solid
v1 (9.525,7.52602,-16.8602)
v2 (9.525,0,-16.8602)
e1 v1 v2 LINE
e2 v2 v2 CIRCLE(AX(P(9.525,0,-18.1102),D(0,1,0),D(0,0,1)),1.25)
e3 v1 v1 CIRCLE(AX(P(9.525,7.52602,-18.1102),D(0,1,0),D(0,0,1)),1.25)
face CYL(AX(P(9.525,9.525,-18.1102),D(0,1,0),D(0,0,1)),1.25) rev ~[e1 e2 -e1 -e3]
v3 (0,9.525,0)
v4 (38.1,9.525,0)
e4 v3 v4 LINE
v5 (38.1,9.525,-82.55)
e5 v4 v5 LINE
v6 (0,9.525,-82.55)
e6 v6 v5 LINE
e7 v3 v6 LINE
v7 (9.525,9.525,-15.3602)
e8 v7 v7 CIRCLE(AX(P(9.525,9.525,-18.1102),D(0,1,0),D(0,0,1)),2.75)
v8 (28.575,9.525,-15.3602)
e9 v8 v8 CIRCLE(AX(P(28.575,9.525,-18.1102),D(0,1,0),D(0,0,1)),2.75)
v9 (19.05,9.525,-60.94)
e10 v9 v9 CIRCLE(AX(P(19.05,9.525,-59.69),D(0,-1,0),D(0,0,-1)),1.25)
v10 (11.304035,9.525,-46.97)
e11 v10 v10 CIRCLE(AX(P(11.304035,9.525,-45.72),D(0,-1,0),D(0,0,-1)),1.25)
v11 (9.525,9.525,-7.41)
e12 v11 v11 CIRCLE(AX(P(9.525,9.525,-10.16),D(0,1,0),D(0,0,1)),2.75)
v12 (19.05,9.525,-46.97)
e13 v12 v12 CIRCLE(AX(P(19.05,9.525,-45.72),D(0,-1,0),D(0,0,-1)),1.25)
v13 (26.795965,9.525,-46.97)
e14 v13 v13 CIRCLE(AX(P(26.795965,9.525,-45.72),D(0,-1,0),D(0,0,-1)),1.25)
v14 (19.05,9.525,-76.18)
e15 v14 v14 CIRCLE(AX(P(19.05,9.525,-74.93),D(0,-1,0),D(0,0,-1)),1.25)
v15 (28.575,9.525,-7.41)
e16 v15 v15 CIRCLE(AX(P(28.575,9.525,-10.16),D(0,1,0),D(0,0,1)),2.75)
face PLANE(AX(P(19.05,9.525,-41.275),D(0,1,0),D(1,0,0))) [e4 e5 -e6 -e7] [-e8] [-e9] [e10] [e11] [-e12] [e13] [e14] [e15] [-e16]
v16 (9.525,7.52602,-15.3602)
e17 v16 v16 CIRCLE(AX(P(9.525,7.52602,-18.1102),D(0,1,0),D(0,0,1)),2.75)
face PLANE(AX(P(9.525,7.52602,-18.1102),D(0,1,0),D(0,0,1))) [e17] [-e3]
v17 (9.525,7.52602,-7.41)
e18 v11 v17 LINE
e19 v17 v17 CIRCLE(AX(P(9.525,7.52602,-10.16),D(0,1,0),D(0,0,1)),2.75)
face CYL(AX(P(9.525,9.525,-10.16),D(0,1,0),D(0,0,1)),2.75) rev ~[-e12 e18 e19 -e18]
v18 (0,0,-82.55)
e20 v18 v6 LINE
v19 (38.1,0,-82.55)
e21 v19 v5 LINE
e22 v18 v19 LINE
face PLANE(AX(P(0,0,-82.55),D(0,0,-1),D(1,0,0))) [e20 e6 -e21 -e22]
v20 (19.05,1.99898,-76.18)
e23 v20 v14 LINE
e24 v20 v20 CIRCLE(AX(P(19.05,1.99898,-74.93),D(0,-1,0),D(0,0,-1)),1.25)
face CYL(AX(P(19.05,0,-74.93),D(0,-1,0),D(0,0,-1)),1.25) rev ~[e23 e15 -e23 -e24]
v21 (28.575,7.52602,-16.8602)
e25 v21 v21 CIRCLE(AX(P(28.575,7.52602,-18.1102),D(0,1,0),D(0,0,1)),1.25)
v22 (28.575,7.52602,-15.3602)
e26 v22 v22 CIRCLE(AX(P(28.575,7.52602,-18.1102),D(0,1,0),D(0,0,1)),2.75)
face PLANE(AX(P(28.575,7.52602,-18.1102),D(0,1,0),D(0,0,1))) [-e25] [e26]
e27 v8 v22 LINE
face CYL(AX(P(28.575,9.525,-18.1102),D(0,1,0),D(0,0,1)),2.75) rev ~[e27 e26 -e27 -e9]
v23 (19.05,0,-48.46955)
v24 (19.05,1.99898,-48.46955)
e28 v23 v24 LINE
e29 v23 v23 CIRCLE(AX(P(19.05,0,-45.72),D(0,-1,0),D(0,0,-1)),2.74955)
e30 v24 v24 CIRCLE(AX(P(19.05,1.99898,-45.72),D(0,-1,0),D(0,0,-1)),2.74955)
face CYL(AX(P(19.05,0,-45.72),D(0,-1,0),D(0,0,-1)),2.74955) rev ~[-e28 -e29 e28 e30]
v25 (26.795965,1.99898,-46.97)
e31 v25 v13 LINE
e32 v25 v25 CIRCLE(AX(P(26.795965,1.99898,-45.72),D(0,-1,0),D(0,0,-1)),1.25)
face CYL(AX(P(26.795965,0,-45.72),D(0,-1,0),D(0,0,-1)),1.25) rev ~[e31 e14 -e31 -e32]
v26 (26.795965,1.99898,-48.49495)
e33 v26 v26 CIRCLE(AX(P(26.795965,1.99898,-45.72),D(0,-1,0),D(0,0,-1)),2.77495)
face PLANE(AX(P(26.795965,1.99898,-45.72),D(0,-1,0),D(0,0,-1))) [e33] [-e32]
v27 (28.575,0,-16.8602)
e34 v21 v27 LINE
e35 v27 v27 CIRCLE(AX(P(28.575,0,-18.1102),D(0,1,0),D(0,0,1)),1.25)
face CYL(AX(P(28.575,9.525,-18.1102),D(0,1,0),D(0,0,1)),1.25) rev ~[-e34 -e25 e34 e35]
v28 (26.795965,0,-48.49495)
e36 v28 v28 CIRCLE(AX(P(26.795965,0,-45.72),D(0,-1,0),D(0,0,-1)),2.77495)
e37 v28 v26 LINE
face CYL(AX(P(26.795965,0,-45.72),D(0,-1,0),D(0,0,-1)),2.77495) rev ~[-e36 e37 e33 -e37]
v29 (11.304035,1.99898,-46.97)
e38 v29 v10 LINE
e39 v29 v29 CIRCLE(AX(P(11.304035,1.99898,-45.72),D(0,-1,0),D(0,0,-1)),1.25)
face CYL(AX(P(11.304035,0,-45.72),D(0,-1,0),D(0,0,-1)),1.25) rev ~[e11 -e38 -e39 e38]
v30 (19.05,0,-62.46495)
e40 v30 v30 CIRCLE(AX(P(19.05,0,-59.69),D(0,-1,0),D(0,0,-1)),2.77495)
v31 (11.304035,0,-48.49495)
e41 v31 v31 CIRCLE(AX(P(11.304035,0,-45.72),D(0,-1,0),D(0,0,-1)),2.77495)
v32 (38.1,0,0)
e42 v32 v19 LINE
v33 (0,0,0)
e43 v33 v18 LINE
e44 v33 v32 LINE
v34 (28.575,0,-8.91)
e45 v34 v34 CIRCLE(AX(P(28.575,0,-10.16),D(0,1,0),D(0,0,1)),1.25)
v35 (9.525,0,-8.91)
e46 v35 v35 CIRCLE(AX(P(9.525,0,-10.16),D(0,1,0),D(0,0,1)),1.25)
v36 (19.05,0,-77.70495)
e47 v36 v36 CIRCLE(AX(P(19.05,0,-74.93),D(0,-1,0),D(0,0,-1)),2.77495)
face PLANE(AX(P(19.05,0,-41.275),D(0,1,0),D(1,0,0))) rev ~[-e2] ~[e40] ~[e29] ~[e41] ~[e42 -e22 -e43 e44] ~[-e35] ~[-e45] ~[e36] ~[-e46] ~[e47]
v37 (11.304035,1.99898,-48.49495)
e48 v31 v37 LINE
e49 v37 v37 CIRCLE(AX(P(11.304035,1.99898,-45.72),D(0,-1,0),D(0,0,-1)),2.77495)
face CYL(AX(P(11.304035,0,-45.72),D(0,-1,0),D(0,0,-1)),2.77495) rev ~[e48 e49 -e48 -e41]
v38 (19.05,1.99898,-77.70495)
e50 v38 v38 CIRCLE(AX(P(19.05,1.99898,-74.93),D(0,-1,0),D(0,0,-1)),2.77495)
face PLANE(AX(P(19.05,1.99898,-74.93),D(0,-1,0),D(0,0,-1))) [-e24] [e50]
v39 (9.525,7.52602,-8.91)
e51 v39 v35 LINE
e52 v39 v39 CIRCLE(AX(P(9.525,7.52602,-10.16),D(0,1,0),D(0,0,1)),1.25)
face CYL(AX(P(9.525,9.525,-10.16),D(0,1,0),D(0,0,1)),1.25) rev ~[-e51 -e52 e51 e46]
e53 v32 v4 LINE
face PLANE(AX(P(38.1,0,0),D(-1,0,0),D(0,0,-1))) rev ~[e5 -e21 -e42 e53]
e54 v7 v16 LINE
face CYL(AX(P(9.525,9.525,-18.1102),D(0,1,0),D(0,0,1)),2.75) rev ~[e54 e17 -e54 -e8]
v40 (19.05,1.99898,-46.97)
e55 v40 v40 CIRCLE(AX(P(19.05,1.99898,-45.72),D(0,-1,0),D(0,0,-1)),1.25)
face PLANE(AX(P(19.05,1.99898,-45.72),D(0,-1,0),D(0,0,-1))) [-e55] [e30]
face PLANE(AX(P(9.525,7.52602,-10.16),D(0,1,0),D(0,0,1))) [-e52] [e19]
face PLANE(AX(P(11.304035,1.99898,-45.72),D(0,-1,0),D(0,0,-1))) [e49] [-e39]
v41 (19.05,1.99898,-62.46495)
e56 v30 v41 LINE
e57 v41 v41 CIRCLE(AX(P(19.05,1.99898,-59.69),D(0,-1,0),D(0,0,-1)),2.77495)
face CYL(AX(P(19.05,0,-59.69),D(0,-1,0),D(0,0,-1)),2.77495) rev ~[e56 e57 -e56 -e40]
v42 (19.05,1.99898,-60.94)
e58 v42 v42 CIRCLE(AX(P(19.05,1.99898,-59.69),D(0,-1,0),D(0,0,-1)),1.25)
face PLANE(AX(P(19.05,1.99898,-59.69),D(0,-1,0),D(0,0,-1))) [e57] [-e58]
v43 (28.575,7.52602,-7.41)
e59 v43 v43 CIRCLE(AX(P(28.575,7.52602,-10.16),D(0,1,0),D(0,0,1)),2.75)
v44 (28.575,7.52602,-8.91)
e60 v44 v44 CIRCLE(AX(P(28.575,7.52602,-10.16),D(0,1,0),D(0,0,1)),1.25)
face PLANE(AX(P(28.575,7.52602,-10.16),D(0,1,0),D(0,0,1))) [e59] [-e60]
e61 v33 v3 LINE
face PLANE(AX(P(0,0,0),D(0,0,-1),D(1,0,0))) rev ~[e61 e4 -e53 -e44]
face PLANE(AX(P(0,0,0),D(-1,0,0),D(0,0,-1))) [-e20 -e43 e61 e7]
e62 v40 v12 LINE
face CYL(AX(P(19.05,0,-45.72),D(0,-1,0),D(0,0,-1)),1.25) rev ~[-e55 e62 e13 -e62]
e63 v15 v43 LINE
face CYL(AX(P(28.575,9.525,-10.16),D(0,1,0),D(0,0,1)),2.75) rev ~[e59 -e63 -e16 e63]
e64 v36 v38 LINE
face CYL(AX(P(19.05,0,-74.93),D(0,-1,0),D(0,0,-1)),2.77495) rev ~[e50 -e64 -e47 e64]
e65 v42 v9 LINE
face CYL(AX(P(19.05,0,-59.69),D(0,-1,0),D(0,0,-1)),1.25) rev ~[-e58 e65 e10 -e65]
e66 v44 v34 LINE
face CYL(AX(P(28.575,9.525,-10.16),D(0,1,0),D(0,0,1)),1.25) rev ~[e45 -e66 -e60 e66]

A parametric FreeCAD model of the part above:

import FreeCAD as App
import Part
import Sketcher
from FreeCAD import Vector
Q = App.Units.Quantity


def add_polygon(sketch, points):
    """Adds a closed chain of lines whose ends are joined by coincident constraints."""
    first, n = sketch.GeometryCount, len(points)
    for a, b in zip(points, points[1:] + points[:1]):
        sketch.addGeometry(Part.LineSegment(App.Vector(*a, 0), App.Vector(*b, 0)), False)
    for i in range(n):
        sketch.addConstraint(Sketcher.Constraint("Coincident", first + i, 2, first + (i + 1) % n, 1))

doc = App.newDocument("Part")
body = doc.addObject("PartDesign::Body", "Body")

# Sketch on XZ plane
sketch1 = body.newObject("Sketcher::SketchObject", "Sketch")
sketch1.AttachmentSupport = (doc.getObject("XZ_Plane"), [""])
sketch1.MapMode = "FlatFace"
add_polygon(sketch1, [(0, -83), (0, 0), (38, 0), (38, -83)])  # lines 0-3
sketch1.addConstraint(Sketcher.Constraint("Vertical", 0))
sketch1.addConstraint(Sketcher.Constraint("Horizontal", 1))
sketch1.addConstraint(Sketcher.Constraint("Vertical", 2))
sketch1.addConstraint(Sketcher.Constraint("Horizontal", 3))
sketch1.addConstraint(Sketcher.Constraint("Coincident", 0, 2, -1, 1))
sketch1.addConstraint(Sketcher.Constraint("DistanceX", 1, 1, 1, 2, Q("38.1 mm")))
sketch1.addConstraint(Sketcher.Constraint("DistanceY", 0, 1, 0, 2, Q("82.55 mm")))
pad1 = body.newObject("PartDesign::Pad", "Pad")
pad1.Profile = sketch1
pad1.Length = 9.525
pad1.Reversed = True

# Sketch on XZ plane
sketch2 = body.newObject("Sketcher::SketchObject", "Sketch001")
sketch2.AttachmentSupport = (doc.getObject("XZ_Plane"), [""])
sketch2.MapMode = "FlatFace"
sketch2.addGeometry(Part.Circle(Vector(19.1, -74.9, 0), Vector(0, 0, 1), 2.8), False)
sketch2.addGeometry(Part.Circle(Vector(19.1, -59.7, 0), Vector(0, 0, 1), 2.8), False)
sketch2.addConstraint(Sketcher.Constraint("Equal", 0, 1))
sketch2.addConstraint(Sketcher.Constraint("Vertical", 0, 3, 1, 3))
sketch2.addConstraint(Sketcher.Constraint("Diameter", 0, Q("5.5499 mm")))
sketch2.addConstraint(Sketcher.Constraint("DistanceX", -1, 1, 0, 3, Q("19.05 mm")))
sketch2.addConstraint(Sketcher.Constraint("DistanceY", 0, 3, -1, 1, Q("74.93 mm")))
sketch2.addConstraint(Sketcher.Constraint("DistanceY", 1, 3, -1, 1, Q("59.69 mm")))
pocket1 = body.newObject("PartDesign::Pocket", "Pocket")
pocket1.Profile = sketch2
pocket1.Length = 1.99898

# Sketch on XZ plane
sketch3 = body.newObject("Sketcher::SketchObject", "Sketch002")
sketch3.AttachmentSupport = (doc.getObject("XZ_Plane"), [""])
sketch3.MapMode = "FlatFace"
sketch3.addGeometry(Part.Circle(Vector(19.1, -74.9, 0), Vector(0, 0, 1), 1.2), False)
sketch3.addGeometry(Part.Circle(Vector(19.1, -59.7, 0), Vector(0, 0, 1), 1.2), False)
sketch3.addConstraint(Sketcher.Constraint("Equal", 0, 1))
sketch3.addConstraint(Sketcher.Constraint("Vertical", 0, 3, 1, 3))
sketch3.addConstraint(Sketcher.Constraint("Diameter", 0, Q("2.5 mm")))
sketch3.addConstraint(Sketcher.Constraint("DistanceX", -1, 1, 0, 3, Q("19.05 mm")))
sketch3.addConstraint(Sketcher.Constraint("DistanceY", 0, 3, -1, 1, Q("74.93 mm")))
sketch3.addConstraint(Sketcher.Constraint("DistanceY", 1, 3, -1, 1, Q("59.69 mm")))
pocket2 = body.newObject("PartDesign::Pocket", "Pocket001")
pocket2.Profile = sketch3
pocket2.Type = "ThroughAll"

# Sketch on XZ plane
sketch4 = body.newObject("Sketcher::SketchObject", "Sketch003")
sketch4.AttachmentSupport = (doc.getObject("XZ_Plane"), [""])
sketch4.MapMode = "FlatFace"
sketch4.addGeometry(Part.Circle(Vector(19.1, -45.7, 0), Vector(0, 0, 1), 2.7), False)
sketch4.addGeometry(Part.Circle(Vector(11.3, -45.7, 0), Vector(0, 0, 1), 2.8), False)
sketch4.addGeometry(Part.Circle(Vector(26.8, -45.7, 0), Vector(0, 0, 1), 2.8), False)
sketch4.addConstraint(Sketcher.Constraint("Equal", 1, 2))
sketch4.addConstraint(Sketcher.Constraint("Horizontal", 0, 3, 1, 3))
sketch4.addConstraint(Sketcher.Constraint("Horizontal", 1, 3, 2, 3))
sketch4.addConstraint(Sketcher.Constraint("Diameter", 0, Q("5.4991 mm")))
sketch4.addConstraint(Sketcher.Constraint("Diameter", 1, Q("5.5499 mm")))
sketch4.addConstraint(Sketcher.Constraint("DistanceX", -1, 1, 0, 3, Q("19.05 mm")))
sketch4.addConstraint(Sketcher.Constraint("DistanceY", 0, 3, -1, 1, Q("45.72 mm")))
sketch4.addConstraint(Sketcher.Constraint("DistanceX", 1, 3, 2, 3, Q("15.49193 mm")))
sketch4.addConstraint(Sketcher.Constraint("DistanceX", -1, 1, 1, 3, Q("11.304035 mm")))
pocket3 = body.newObject("PartDesign::Pocket", "Pocket002")
pocket3.Profile = sketch4
pocket3.Length = 1.99898

# Sketch on XZ plane
sketch5 = body.newObject("Sketcher::SketchObject", "Sketch004")
sketch5.AttachmentSupport = (doc.getObject("XZ_Plane"), [""])
sketch5.MapMode = "FlatFace"
sketch5.addGeometry(Part.Circle(Vector(19.1, -45.7, 0), Vector(0, 0, 1), 1.2), False)
sketch5.addGeometry(Part.Circle(Vector(26.8, -45.7, 0), Vector(0, 0, 1), 1.2), False)
sketch5.addGeometry(Part.Circle(Vector(11.3, -45.7, 0), Vector(0, 0, 1), 1.2), False)
sketch5.addConstraint(Sketcher.Constraint("Equal", 0, 1))
sketch5.addConstraint(Sketcher.Constraint("Equal", 1, 2))
sketch5.addConstraint(Sketcher.Constraint("Horizontal", 0, 3, 1, 3))
sketch5.addConstraint(Sketcher.Constraint("Horizontal", 1, 3, 2, 3))
sketch5.addConstraint(Sketcher.Constraint("Diameter", 0, Q("2.5 mm")))
sketch5.addConstraint(Sketcher.Constraint("DistanceX", -1, 1, 0, 3, Q("19.05 mm")))
sketch5.addConstraint(Sketcher.Constraint("DistanceY", 0, 3, -1, 1, Q("45.72 mm")))
sketch5.addConstraint(Sketcher.Constraint("DistanceX", 2, 3, 1, 3, Q("15.49193 mm")))
sketch5.addConstraint(Sketcher.Constraint("DistanceX", -1, 1, 1, 3, Q("26.795965 mm")))
pocket4 = body.newObject("PartDesign::Pocket", "Pocket003")
pocket4.Profile = sketch5
pocket4.Type = "ThroughAll"

# Sketch on XZ plane
sketch6 = body.newObject("Sketcher::SketchObject", "Sketch005")
sketch6.AttachmentSupport = (doc.getObject("XZ_Plane"), [""])
sketch6.MapMode = "FlatFace"
sketch6.AttachmentOffset = App.Placement(Vector(0, 0, -9.525), App.Rotation())
sketch6.addGeometry(Part.Circle(Vector(9.5, -18.1, 0), Vector(0, 0, 1), 2.8), False)
sketch6.addGeometry(Part.Circle(Vector(9.5, -10.2, 0), Vector(0, 0, 1), 2.8), False)
sketch6.addGeometry(Part.Circle(Vector(28.6, -18.1, 0), Vector(0, 0, 1), 2.8), False)
sketch6.addGeometry(Part.Circle(Vector(28.6, -10.2, 0), Vector(0, 0, 1), 2.8), False)
sketch6.addConstraint(Sketcher.Constraint("Equal", 0, 1))
sketch6.addConstraint(Sketcher.Constraint("Equal", 1, 2))
sketch6.addConstraint(Sketcher.Constraint("Equal", 2, 3))
sketch6.addConstraint(Sketcher.Constraint("Horizontal", 0, 3, 2, 3))
sketch6.addConstraint(Sketcher.Constraint("Horizontal", 1, 3, 3, 3))
sketch6.addConstraint(Sketcher.Constraint("Vertical", 0, 3, 1, 3))
sketch6.addConstraint(Sketcher.Constraint("Vertical", 2, 3, 3, 3))
sketch6.addConstraint(Sketcher.Constraint("Diameter", 0, Q("5.5 mm")))
sketch6.addConstraint(Sketcher.Constraint("DistanceY", 1, 3, -1, 1, Q("10.16 mm")))
sketch6.addConstraint(Sketcher.Constraint("DistanceX", 0, 3, 2, 3, Q("19.05 mm")))
sketch6.addConstraint(Sketcher.Constraint("DistanceX", -1, 1, 0, 3, Q("9.525 mm")))
sketch6.addConstraint(Sketcher.Constraint("DistanceY", 0, 3, -1, 1, Q("18.1102 mm")))
pocket5 = body.newObject("PartDesign::Pocket", "Pocket004")
pocket5.Profile = sketch6
pocket5.Length = 1.99898
pocket5.Reversed = True

# Sketch on XZ plane
sketch7 = body.newObject("Sketcher::SketchObject", "Sketch006")
sketch7.AttachmentSupport = (doc.getObject("XZ_Plane"), [""])
sketch7.MapMode = "FlatFace"
sketch7.AttachmentOffset = App.Placement(Vector(0, 0, -9.525), App.Rotation())
sketch7.addGeometry(Part.Circle(Vector(9.5, -18.1, 0), Vector(0, 0, 1), 1.2), False)
sketch7.addGeometry(Part.Circle(Vector(9.5, -10.2, 0), Vector(0, 0, 1), 1.2), False)
sketch7.addGeometry(Part.Circle(Vector(28.6, -10.2, 0), Vector(0, 0, 1), 1.2), False)
sketch7.addGeometry(Part.Circle(Vector(28.6, -18.1, 0), Vector(0, 0, 1), 1.2), False)
sketch7.addConstraint(Sketcher.Constraint("Equal", 0, 1))
sketch7.addConstraint(Sketcher.Constraint("Equal", 1, 2))
sketch7.addConstraint(Sketcher.Constraint("Equal", 2, 3))
sketch7.addConstraint(Sketcher.Constraint("Horizontal", 1, 3, 2, 3))
sketch7.addConstraint(Sketcher.Constraint("Horizontal", 0, 3, 3, 3))
sketch7.addConstraint(Sketcher.Constraint("Vertical", 0, 3, 1, 3))
sketch7.addConstraint(Sketcher.Constraint("Vertical", 2, 3, 3, 3))
sketch7.addConstraint(Sketcher.Constraint("Diameter", 0, Q("2.5 mm")))
sketch7.addConstraint(Sketcher.Constraint("DistanceY", 1, 3, -1, 1, Q("10.16 mm")))
sketch7.addConstraint(Sketcher.Constraint("DistanceX", 1, 3, 2, 3, Q("19.05 mm")))
sketch7.addConstraint(Sketcher.Constraint("DistanceX", -1, 1, 0, 3, Q("9.525 mm")))
sketch7.addConstraint(Sketcher.Constraint("DistanceY", 0, 3, -1, 1, Q("18.1102 mm")))
pocket6 = body.newObject("PartDesign::Pocket", "Pocket005")
pocket6.Profile = sketch7
pocket6.Length = 10
pocket6.Reversed = True

doc.recompute()
